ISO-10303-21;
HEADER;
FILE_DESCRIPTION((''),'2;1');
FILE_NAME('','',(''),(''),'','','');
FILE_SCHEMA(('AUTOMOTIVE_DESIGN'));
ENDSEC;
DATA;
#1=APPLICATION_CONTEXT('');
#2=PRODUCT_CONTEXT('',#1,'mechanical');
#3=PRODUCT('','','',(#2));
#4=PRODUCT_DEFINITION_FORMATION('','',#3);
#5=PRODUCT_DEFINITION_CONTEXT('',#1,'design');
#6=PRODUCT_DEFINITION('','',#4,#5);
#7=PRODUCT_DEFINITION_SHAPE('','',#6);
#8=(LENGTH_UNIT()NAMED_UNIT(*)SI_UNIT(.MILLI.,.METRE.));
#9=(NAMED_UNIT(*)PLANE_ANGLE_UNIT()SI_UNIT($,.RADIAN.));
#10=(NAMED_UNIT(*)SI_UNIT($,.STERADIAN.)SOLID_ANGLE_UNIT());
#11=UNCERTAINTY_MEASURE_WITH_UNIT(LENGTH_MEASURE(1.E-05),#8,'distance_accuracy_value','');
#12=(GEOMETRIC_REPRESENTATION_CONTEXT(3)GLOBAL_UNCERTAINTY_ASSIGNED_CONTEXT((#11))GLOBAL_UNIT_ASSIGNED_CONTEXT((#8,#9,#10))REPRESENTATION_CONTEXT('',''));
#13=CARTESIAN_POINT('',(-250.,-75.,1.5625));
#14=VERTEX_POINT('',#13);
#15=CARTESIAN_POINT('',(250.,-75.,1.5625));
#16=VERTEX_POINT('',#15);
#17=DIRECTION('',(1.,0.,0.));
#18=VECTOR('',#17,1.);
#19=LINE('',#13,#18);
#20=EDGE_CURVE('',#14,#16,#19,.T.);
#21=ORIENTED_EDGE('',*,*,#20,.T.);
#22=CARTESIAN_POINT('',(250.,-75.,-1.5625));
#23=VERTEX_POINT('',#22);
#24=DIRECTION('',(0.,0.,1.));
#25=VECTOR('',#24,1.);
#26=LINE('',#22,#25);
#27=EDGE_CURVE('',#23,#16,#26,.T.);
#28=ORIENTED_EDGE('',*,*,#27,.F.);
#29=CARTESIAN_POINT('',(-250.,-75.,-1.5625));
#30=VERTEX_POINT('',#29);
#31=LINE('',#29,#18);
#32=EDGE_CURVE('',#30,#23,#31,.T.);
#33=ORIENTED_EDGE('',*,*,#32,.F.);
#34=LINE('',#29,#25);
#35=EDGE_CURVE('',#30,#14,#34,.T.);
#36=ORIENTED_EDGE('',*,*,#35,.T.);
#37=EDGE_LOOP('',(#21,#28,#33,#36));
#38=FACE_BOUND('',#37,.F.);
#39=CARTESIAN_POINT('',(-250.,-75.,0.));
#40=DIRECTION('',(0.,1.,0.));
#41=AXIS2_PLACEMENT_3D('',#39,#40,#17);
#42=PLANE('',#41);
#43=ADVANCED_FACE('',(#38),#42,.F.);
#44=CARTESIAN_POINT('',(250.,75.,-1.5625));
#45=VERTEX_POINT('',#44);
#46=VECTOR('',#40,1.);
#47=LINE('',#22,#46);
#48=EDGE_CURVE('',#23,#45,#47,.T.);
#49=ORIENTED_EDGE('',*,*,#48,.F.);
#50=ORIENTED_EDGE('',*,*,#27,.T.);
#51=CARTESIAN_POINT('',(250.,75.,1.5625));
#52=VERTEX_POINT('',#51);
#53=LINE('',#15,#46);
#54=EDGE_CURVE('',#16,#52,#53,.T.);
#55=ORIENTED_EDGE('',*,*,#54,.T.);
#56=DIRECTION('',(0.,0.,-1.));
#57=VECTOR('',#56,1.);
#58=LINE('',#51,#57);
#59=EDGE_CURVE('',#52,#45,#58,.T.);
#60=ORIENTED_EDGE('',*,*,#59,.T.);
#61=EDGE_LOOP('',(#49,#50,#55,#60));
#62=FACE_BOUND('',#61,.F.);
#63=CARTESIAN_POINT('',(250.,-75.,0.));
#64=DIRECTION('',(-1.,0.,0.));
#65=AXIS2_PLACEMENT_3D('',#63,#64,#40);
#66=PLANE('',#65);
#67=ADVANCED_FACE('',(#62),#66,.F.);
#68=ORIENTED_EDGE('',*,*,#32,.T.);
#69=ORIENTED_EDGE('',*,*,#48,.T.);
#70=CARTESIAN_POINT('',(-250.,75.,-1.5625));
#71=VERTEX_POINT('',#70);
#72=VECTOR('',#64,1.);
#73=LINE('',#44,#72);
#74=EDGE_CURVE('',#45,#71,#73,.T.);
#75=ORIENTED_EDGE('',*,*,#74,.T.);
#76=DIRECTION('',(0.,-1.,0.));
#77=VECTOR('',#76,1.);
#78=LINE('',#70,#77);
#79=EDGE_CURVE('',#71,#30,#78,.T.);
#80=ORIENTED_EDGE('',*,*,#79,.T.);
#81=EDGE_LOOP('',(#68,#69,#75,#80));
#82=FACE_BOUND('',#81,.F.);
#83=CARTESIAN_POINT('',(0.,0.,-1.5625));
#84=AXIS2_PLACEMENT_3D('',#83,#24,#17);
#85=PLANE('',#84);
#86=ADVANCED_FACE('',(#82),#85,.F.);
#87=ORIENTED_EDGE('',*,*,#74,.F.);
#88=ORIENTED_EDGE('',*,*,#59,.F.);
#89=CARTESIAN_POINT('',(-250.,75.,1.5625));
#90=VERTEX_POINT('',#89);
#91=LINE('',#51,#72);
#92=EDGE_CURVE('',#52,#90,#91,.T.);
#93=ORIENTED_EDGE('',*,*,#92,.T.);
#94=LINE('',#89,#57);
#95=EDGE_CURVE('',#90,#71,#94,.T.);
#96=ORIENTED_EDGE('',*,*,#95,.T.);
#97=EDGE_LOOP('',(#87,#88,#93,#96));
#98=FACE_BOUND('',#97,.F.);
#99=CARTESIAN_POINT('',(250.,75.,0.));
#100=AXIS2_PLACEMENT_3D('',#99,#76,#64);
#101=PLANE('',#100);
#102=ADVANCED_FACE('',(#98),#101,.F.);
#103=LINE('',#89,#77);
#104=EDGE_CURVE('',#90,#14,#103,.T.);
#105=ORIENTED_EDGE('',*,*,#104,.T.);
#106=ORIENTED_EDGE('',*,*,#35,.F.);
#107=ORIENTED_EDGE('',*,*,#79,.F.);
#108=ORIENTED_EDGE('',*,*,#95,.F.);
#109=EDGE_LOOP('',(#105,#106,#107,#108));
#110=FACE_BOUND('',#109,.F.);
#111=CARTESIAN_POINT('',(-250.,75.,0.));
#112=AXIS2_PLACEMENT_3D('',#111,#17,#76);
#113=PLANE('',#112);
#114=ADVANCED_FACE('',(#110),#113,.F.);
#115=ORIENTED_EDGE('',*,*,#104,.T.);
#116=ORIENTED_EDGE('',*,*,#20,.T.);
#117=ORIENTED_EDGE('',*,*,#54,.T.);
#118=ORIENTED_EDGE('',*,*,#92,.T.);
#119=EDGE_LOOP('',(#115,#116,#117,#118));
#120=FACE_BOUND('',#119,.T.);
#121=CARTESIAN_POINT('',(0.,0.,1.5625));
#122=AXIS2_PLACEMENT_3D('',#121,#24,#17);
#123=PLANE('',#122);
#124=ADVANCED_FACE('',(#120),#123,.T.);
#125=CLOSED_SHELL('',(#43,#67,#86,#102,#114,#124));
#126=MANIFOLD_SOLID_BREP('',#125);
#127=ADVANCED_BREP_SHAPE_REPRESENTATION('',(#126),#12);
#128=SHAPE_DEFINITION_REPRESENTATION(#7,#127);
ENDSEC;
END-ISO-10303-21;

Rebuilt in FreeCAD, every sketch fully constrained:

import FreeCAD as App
import Part
import Sketcher

doc = App.newDocument("Part")
body = doc.addObject("PartDesign::Body", "Body")

# Sketch on XY plane
sketch1 = body.newObject("Sketcher::SketchObject", "Sketch")
sketch1.AttachmentSupport = (doc.getObject("XY_Plane"), [""])
sketch1.MapMode = "FlatFace"
sketch1.addGeometry(Part.LineSegment(App.Vector(-250, 75, 0), App.Vector(-250, -75, 0)), False)
sketch1.addGeometry(Part.LineSegment(App.Vector(-250, -75, 0), App.Vector(250, -75, 0)), False)
sketch1.addGeometry(Part.LineSegment(App.Vector(250, -75, 0), App.Vector(250, 75, 0)), False)
sketch1.addGeometry(Part.LineSegment(App.Vector(250, 75, 0), App.Vector(-250, 75, 0)), False)
sketch1.addConstraint(Sketcher.Constraint("Coincident", 0, 2, 1, 1))
sketch1.addConstraint(Sketcher.Constraint("Coincident", 1, 2, 2, 1))
sketch1.addConstraint(Sketcher.Constraint("Coincident", 2, 2, 3, 1))
sketch1.addConstraint(Sketcher.Constraint("Coincident", 3, 2, 0, 1))
sketch1.addConstraint(Sketcher.Constraint("Vertical", 0))
sketch1.addConstraint(Sketcher.Constraint("Horizontal", 1))
sketch1.addConstraint(Sketcher.Constraint("Vertical", 2))
sketch1.addConstraint(Sketcher.Constraint("Horizontal", 3))
sketch1.addConstraint(Sketcher.Constraint("Symmetric", 0, 2, 2, 2, -1, 1))
sketch1.addConstraint(Sketcher.Constraint("DistanceX", 1, 1, 1, 2, 500.0))
sketch1.addConstraint(Sketcher.Constraint("DistanceY", 0, 2, 0, 1, 150.0))
pad1 = body.newObject("PartDesign::Pad", "Pad")
pad1.Profile = sketch1
pad1.Length = 3.125
pad1.Midplane = True

doc.recompute()
